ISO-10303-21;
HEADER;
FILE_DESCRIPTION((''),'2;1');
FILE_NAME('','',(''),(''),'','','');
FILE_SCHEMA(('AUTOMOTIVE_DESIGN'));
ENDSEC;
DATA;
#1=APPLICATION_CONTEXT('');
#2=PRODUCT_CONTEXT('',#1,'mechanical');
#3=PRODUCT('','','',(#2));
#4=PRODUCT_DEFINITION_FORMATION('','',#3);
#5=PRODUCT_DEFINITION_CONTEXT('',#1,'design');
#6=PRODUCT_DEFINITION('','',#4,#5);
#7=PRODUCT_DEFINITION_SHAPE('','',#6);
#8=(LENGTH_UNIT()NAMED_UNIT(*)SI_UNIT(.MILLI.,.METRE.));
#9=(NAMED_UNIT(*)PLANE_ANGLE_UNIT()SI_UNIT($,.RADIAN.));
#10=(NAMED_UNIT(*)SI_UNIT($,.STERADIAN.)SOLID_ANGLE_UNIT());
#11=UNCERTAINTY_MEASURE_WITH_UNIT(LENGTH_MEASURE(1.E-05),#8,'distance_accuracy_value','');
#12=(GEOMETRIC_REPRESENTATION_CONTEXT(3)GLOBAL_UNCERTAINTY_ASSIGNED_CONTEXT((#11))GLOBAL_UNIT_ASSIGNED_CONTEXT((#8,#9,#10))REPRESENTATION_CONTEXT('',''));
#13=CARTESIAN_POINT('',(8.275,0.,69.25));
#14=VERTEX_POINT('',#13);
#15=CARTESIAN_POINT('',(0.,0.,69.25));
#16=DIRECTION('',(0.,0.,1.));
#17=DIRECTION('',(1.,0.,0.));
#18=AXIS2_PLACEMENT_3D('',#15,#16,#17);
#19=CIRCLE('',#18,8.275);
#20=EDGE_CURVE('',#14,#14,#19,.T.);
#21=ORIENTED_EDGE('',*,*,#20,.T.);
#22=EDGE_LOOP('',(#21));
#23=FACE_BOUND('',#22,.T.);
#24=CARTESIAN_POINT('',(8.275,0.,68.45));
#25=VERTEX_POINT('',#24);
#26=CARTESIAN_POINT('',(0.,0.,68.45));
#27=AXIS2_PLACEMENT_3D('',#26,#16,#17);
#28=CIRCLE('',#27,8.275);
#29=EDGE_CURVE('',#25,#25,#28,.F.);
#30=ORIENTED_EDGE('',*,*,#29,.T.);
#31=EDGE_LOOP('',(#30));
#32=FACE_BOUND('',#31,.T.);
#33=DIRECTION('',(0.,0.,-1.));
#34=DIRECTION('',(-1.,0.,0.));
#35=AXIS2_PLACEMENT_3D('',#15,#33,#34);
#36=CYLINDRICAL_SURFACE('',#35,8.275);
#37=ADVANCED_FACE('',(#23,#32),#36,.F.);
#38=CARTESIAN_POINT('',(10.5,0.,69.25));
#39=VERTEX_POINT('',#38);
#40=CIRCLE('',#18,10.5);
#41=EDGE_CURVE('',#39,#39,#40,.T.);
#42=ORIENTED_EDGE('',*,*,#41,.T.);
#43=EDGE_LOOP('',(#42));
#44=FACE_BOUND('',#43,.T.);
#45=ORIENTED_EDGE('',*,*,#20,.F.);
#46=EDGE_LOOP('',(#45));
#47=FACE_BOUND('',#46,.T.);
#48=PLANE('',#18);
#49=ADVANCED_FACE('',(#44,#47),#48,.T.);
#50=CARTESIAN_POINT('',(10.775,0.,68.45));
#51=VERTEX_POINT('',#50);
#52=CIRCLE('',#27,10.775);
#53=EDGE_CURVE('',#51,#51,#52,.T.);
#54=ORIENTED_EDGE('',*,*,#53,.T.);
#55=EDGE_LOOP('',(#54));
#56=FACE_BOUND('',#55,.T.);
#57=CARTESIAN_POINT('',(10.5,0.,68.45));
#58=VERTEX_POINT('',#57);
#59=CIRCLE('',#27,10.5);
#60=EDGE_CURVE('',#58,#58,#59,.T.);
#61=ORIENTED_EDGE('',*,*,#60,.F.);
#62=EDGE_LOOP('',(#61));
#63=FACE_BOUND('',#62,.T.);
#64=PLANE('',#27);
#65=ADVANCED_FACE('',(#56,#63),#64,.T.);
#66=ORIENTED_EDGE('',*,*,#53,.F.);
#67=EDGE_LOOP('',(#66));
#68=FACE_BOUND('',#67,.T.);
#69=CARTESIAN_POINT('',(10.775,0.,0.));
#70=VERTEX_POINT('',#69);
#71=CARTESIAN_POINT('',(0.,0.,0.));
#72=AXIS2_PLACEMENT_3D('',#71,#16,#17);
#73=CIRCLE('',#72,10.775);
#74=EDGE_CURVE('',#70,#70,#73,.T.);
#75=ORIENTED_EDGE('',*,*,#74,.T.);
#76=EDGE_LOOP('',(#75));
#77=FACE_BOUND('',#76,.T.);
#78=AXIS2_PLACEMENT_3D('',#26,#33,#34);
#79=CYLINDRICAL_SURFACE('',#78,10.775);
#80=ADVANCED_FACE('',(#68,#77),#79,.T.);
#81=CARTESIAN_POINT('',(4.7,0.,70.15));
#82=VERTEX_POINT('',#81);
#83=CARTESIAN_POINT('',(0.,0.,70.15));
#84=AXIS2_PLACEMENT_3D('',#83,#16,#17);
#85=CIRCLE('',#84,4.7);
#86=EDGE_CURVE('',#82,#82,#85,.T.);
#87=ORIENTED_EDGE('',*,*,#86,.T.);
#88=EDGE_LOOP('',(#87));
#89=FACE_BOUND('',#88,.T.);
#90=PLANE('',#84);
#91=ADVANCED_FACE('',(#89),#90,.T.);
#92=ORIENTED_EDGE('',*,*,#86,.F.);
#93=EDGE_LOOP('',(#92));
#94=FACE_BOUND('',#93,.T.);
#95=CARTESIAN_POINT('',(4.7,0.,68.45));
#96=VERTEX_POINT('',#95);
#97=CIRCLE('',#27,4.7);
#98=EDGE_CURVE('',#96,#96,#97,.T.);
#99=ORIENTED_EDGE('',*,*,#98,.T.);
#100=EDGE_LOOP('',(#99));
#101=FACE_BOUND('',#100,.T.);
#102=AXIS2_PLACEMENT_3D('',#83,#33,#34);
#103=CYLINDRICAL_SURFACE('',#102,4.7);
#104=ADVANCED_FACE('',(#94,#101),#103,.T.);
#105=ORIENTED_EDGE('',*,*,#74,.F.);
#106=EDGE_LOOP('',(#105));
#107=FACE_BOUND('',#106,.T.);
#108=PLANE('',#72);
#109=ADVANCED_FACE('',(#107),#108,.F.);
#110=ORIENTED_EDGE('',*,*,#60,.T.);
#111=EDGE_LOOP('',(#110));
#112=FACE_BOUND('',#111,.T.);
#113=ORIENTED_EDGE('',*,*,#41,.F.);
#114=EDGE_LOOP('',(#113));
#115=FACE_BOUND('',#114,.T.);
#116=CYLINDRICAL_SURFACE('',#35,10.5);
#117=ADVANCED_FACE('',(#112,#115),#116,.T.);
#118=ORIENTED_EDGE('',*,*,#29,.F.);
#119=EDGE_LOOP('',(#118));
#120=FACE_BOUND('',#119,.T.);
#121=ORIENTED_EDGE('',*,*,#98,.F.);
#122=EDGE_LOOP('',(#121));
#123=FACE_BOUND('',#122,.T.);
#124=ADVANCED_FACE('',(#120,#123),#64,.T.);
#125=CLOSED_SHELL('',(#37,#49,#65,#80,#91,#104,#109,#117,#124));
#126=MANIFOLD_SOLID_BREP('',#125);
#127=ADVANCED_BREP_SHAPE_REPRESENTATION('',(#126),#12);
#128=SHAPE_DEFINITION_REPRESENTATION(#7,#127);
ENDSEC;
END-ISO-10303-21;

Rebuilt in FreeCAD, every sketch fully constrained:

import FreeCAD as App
import Part
import Sketcher
Q = App.Units.Quantity

doc = App.newDocument("Part")
body = doc.addObject("PartDesign::Body", "Body")

# Sketch on XY plane
sketch1 = doc.addObject("Sketcher::SketchObject", "Sketch")
body.addObject(sketch1)
sketch1.AttachmentSupport = (doc.XY_Plane, [""])
sketch1.MapMode = "FlatFace"
sketch1.addGeometry(Part.Circle(App.Vector(0, 0, 0), App.Vector(0, 0, 1), 10.775), False)
sketch1.addConstraint([
    Sketcher.Constraint("Coincident", 0, 3, -1, 1),
    Sketcher.Constraint("Diameter", 0, Q("21.55 mm")),
])
pad1 = doc.addObject("PartDesign::Pad", "Pad")
body.addObject(pad1)
pad1.Profile = sketch1
pad1.Length = 68.45

# Sketch on XY plane
sketch2 = doc.addObject("Sketcher::SketchObject", "Sketch001")
body.addObject(sketch2)
sketch2.AttachmentSupport = (doc.XY_Plane, [""])
sketch2.MapMode = "FlatFace"
sketch2.AttachmentOffset = App.Placement(App.Vector(0, 0, 68.45), App.Rotation())
sketch2.addGeometry(Part.Circle(App.Vector(0, 0, 0), App.Vector(0, 0, 1), 4.7), False)
sketch2.addConstraint([
    Sketcher.Constraint("Coincident", 0, 3, -1, 1),
    Sketcher.Constraint("Diameter", 0, Q("9.4 mm")),
])
pad2 = doc.addObject("PartDesign::Pad", "Pad001")
body.addObject(pad2)
pad2.Profile = sketch2
pad2.Length = 1.7

# Sketch on XY plane
sketch3 = doc.addObject("Sketcher::SketchObject", "Sketch002")
body.addObject(sketch3)
sketch3.AttachmentSupport = (doc.XY_Plane, [""])
sketch3.MapMode = "FlatFace"
sketch3.AttachmentOffset = App.Placement(App.Vector(0, 0, 68.45), App.Rotation())
sketch3.addGeometry([
    Part.Circle(App.Vector(0, 0, 0), App.Vector(0, 0, 1), 10.5),
    Part.Circle(App.Vector(0, 0, 0), App.Vector(0, 0, 1), 8.275),
], False)
sketch3.addConstraint([
    Sketcher.Constraint("Coincident", 0, 3, -1, 1),
    Sketcher.Constraint("Coincident", 1, 3, -1, 1),
    Sketcher.Constraint("Diameter", 0, Q("21 mm")),
    Sketcher.Constraint("Diameter", 1, Q("16.55 mm")),
])
pad3 = doc.addObject("PartDesign::Pad", "Pad002")
body.addObject(pad3)
pad3.Profile = sketch3
pad3.Length = 0.8

doc.recompute()
